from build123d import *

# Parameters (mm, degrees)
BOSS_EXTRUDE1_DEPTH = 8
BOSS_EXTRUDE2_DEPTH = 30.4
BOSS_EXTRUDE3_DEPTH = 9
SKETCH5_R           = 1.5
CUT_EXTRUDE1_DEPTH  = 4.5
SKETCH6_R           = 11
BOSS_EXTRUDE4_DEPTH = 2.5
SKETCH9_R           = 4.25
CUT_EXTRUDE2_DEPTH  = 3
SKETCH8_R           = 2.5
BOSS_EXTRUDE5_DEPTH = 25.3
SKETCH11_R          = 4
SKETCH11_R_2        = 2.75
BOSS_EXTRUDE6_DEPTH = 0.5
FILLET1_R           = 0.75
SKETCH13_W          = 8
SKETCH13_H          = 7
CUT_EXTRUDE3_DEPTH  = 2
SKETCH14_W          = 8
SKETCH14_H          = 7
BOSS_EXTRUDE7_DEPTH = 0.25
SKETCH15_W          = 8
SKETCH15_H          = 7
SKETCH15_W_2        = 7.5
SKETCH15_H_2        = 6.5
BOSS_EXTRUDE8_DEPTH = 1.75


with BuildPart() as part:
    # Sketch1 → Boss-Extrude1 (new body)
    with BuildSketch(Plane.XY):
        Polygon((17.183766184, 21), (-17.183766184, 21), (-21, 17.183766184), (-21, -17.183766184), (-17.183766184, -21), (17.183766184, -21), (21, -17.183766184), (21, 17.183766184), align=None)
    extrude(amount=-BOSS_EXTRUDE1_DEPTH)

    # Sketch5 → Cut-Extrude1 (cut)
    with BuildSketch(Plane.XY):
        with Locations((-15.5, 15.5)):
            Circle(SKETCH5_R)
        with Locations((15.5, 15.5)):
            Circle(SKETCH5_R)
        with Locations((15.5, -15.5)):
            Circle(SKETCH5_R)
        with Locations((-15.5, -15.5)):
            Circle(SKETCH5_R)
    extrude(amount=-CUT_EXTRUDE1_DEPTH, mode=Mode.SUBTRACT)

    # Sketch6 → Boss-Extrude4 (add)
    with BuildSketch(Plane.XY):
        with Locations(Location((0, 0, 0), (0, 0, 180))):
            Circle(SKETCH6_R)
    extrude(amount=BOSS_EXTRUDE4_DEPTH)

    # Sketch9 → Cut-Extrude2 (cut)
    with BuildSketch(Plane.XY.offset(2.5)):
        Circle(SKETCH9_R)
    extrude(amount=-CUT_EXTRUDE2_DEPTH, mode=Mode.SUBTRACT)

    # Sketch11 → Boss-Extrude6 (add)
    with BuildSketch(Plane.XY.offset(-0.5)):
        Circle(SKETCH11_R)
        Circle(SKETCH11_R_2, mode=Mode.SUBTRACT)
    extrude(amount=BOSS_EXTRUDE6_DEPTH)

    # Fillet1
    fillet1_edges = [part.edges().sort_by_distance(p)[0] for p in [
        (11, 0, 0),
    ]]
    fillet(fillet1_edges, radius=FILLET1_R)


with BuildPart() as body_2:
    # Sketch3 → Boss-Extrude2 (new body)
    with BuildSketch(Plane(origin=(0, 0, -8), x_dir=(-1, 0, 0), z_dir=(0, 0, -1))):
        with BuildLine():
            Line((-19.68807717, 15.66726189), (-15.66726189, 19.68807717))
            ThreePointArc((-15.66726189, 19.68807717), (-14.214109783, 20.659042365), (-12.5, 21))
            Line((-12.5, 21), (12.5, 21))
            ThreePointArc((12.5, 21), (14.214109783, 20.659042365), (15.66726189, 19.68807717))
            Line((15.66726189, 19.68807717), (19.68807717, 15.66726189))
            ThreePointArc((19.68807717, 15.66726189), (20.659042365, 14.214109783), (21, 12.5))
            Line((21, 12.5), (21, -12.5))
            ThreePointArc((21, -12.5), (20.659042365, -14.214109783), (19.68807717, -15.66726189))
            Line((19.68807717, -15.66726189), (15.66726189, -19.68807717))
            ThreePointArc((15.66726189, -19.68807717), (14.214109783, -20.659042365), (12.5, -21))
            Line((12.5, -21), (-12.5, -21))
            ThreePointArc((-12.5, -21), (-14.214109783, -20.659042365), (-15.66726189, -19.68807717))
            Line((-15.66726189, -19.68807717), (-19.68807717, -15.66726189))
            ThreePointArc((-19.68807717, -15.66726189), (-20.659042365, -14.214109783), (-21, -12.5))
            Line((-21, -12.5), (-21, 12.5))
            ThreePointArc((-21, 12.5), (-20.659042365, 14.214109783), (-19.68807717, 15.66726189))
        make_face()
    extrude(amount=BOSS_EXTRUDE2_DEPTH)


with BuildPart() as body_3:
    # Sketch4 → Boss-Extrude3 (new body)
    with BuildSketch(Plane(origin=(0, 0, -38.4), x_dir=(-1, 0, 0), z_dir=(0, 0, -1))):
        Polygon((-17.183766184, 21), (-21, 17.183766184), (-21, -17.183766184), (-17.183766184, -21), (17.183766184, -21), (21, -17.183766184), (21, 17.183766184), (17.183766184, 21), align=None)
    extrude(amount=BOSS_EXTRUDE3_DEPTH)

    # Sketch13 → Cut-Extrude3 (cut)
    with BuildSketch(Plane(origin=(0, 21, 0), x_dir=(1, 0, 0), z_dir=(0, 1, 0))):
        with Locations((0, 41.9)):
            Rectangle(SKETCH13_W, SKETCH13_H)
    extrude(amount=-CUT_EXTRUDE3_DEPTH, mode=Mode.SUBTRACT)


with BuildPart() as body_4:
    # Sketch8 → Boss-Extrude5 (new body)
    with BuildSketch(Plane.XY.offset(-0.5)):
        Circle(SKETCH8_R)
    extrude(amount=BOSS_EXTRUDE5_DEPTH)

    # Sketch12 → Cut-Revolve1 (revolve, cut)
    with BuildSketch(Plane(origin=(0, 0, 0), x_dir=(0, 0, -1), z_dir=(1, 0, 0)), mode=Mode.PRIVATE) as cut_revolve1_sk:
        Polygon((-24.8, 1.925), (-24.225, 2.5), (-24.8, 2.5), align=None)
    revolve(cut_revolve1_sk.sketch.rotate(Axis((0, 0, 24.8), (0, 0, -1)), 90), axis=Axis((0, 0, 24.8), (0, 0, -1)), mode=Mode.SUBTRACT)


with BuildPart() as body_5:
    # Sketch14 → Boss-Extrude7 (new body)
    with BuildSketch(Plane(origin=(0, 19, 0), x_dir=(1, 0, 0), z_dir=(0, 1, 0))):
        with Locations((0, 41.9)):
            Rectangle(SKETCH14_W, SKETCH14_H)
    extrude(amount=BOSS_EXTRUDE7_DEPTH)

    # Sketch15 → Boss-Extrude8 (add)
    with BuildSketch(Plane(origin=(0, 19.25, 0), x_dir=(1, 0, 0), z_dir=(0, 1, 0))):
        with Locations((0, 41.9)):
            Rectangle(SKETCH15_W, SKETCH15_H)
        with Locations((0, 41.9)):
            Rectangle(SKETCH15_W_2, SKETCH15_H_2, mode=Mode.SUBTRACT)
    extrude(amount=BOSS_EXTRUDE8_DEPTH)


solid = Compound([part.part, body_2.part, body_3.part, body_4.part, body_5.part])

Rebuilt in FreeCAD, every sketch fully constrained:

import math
import FreeCAD as App
import Part
import Sketcher
from FreeCAD import Vector
Q = App.Units.Quantity


def edges_at(feature, points):
    """Names of the edges that pass closest to the given points."""
    edges = feature.Shape.Edges
    near = lambda p: min(range(len(edges)), key=lambda i: edges[i].distToShape(Part.Vertex(*p))[0])
    return sorted({f"Edge{near(p) + 1}" for p in points})

doc = App.newDocument("Part")
body = doc.addObject("PartDesign::Body", "Body")

# Sketch on XY plane
sketch1 = body.newObject("Sketcher::SketchObject", "Sketch")
sketch1.AttachmentSupport = (doc.getObject("XY_Plane"), [""])
sketch1.MapMode = "FlatFace"
sketch1.addGeometry([
    Part.LineSegment(Vector(17, 21, 0), Vector(-17, 21, 0)),  # 0
    Part.LineSegment(Vector(-17, 21, 0), Vector(-21, 17, 0)),  # 1
    Part.LineSegment(Vector(-21, 17, 0), Vector(-21, -17, 0)),  # 2
    Part.LineSegment(Vector(-21, -17, 0), Vector(-17, -21, 0)),  # 3
    Part.LineSegment(Vector(-17, -21, 0), Vector(17, -21, 0)),  # 4
    Part.LineSegment(Vector(17, -21, 0), Vector(21, -17, 0)),  # 5
    Part.LineSegment(Vector(21, -17, 0), Vector(21, 17, 0)),  # 6
    Part.LineSegment(Vector(21, 17, 0), Vector(17, 21, 0)),  # 7
], False)
sketch1.addConstraint([
    Sketcher.Constraint("Coincident", 0, 2, 1, 1),
    Sketcher.Constraint("Coincident", 1, 2, 2, 1),
    Sketcher.Constraint("Coincident", 2, 2, 3, 1),
    Sketcher.Constraint("Coincident", 3, 2, 4, 1),
    Sketcher.Constraint("Coincident", 4, 2, 5, 1),
    Sketcher.Constraint("Coincident", 5, 2, 6, 1),
    Sketcher.Constraint("Coincident", 6, 2, 7, 1),
    Sketcher.Constraint("Coincident", 7, 2, 0, 1),
    Sketcher.Constraint("Horizontal", 0),
    Sketcher.Constraint("Vertical", 2),
    Sketcher.Constraint("Horizontal", 4),
    Sketcher.Constraint("Vertical", 6),
    Sketcher.Constraint("Symmetric", 0, 2, 4, 2, -1, 1),
    Sketcher.Constraint("Symmetric", 1, 2, 5, 2, -1, 1),
    Sketcher.Constraint("Perpendicular", 1, 3),
    Sketcher.Constraint("Perpendicular", 5, 7),
    Sketcher.Constraint("Horizontal", 2, 2, 5, 2),
    Sketcher.Constraint("Horizontal", 1, 2, 6, 2),
    Sketcher.Constraint("Vertical", 0, 2, 3, 2),
    Sketcher.Constraint("Equal", 4, 2),
    Sketcher.Constraint("DistanceY", -1, 1, 0, 2, Q("21 mm")),
    Sketcher.Constraint("Distance", 1, Q("5.39697 mm")),
])
pad1 = body.newObject("PartDesign::Pad", "Pad")
pad1.Profile = sketch1
pad1.Length = 8
pad1.Reversed = True

# Sketch on XY plane
sketch2 = body.newObject("Sketcher::SketchObject", "Sketch001")
sketch2.AttachmentSupport = (doc.getObject("XY_Plane"), [""])
sketch2.MapMode = "FlatFace"
sketch2.addGeometry([
    Part.Circle(Vector(-15.5, 15.5, 0), Vector(0, 0, 1), 1.5),
    Part.Circle(Vector(15.5, 15.5, 0), Vector(0, 0, 1), 1.5),
    Part.Circle(Vector(15.5, -15.5, 0), Vector(0, 0, 1), 1.5),
    Part.Circle(Vector(-15.5, -15.5, 0), Vector(0, 0, 1), 1.5),
], False)
sketch2.addConstraint([
    Sketcher.Constraint("Equal", 0, 1),
    Sketcher.Constraint("Equal", 1, 2),
    Sketcher.Constraint("Equal", 2, 3),
    Sketcher.Constraint("Symmetric", 0, 3, 2, 3, -1, 1),
    Sketcher.Constraint("Symmetric", 1, 3, 3, 3, -1, 1),
    Sketcher.Constraint("Symmetric", 0, 3, 1, 3, -2),
    Sketcher.Constraint("Diameter", 0, Q("3 mm")),
    Sketcher.Constraint("DistanceX", 0, 3, 1, 3, Q("31 mm")),
    Sketcher.Constraint("DistanceY", 2, 3, 1, 3, Q("31 mm")),
])
pocket1 = body.newObject("PartDesign::Pocket", "Pocket")
pocket1.Profile = sketch2
pocket1.Length = 4.5

# Sketch on XY plane
sketch3 = body.newObject("Sketcher::SketchObject", "Sketch002")
sketch3.AttachmentSupport = (doc.getObject("XY_Plane"), [""])
sketch3.MapMode = "FlatFace"
sketch3.addGeometry(Part.Circle(Vector(0, 0, 0), Vector(0, 0, 1), 11), False)
sketch3.addConstraint([
    Sketcher.Constraint("Coincident", 0, 3, -1, 1),
    Sketcher.Constraint("Diameter", 0, Q("22 mm")),
])
pad2 = body.newObject("PartDesign::Pad", "Pad001")
pad2.Profile = sketch3
pad2.Length = 2.5

# Sketch on XY plane
sketch4 = body.newObject("Sketcher::SketchObject", "Sketch003")
sketch4.AttachmentSupport = (doc.getObject("XY_Plane"), [""])
sketch4.MapMode = "FlatFace"
sketch4.AttachmentOffset = App.Placement(Vector(0, 0, 2.5), App.Rotation())
sketch4.addGeometry(Part.Circle(Vector(0, 0, 0), Vector(0, 0, 1), 4.2), False)
sketch4.addConstraint([
    Sketcher.Constraint("Coincident", 0, 3, -1, 1),
    Sketcher.Constraint("Diameter", 0, Q("8.5 mm")),
])
pocket2 = body.newObject("PartDesign::Pocket", "Pocket001")
pocket2.Profile = sketch4
pocket2.Length = 3

# Sketch on XY plane
sketch5 = body.newObject("Sketcher::SketchObject", "Sketch004")
sketch5.AttachmentSupport = (doc.getObject("XY_Plane"), [""])
sketch5.MapMode = "FlatFace"
sketch5.AttachmentOffset = App.Placement(Vector(0, 0, -0.5), App.Rotation())
sketch5.addGeometry([
    Part.Circle(Vector(0, 0, 0), Vector(0, 0, 1), 4),
    Part.Circle(Vector(0, 0, 0), Vector(0, 0, 1), 2.8),
], False)
sketch5.addConstraint([
    Sketcher.Constraint("Coincident", 0, 3, -1, 1),
    Sketcher.Constraint("Coincident", 1, 3, -1, 1),
    Sketcher.Constraint("Diameter", 0, Q("8 mm")),
    Sketcher.Constraint("Diameter", 1, Q("5.5 mm")),
])
pad3 = body.newObject("PartDesign::Pad", "Pad002")
pad3.Profile = sketch5
pad3.Length = 0.5
doc.recompute()

fillet = body.newObject("PartDesign::Fillet", "Fillet")
fillet.Base = (pad3, edges_at(pad3, [(11, 0, 0)]))
fillet.Radius = 0.75
body2 = doc.addObject("PartDesign::Body", "Body001")

# Sketch on XY plane
sketch6 = body2.newObject("Sketcher::SketchObject", "Sketch005")
sketch6.AttachmentSupport = (doc.getObject("XY_Plane001"), [""])
sketch6.MapMode = "FlatFace"
sketch6.AttachmentOffset = App.Placement(Vector(0, 0, -8), App.Rotation())
sketch6.addGeometry([
    Part.LineSegment(Vector(15.7, 19.7, 0), Vector(19.7, 15.7, 0)),  # 0
    Part.ArcOfCircle(Part.Circle(Vector(16.5, 12.5, 0), Vector(0, 0, 1), 4.5), math.radians(0), math.radians(45)),  # 1
    Part.LineSegment(Vector(21, 12.5, 0), Vector(21, -12.5, 0)),  # 2
    Part.ArcOfCircle(Part.Circle(Vector(16.5, -12.5, 0), Vector(0, 0, 1), 4.5), math.radians(-45), math.radians(0)),  # 3
    Part.LineSegment(Vector(19.7, -15.7, 0), Vector(15.7, -19.7, 0)),  # 4
    Part.ArcOfCircle(Part.Circle(Vector(12.5, -16.5, 0), Vector(0, 0, 1), 4.5), math.radians(-90), math.radians(-45)),  # 5
    Part.LineSegment(Vector(12.5, -21, 0), Vector(-12.5, -21, 0)),  # 6
    Part.ArcOfCircle(Part.Circle(Vector(-12.5, -16.5, 0), Vector(0, 0, 1), 4.5), math.radians(-135), math.radians(-90)),  # 7
    Part.LineSegment(Vector(-15.7, -19.7, 0), Vector(-19.7, -15.7, 0)),  # 8
    Part.ArcOfCircle(Part.Circle(Vector(-16.5, -12.5, 0), Vector(0, 0, 1), 4.5), math.radians(-180), math.radians(-135)),  # 9
    Part.LineSegment(Vector(-21, -12.5, 0), Vector(-21, 12.5, 0)),  # 10
    Part.ArcOfCircle(Part.Circle(Vector(-16.5, 12.5, 0), Vector(0, 0, 1), 4.5), math.radians(135), math.radians(180)),  # 11
    Part.LineSegment(Vector(-19.7, 15.7, 0), Vector(-15.7, 19.7, 0)),  # 12
    Part.ArcOfCircle(Part.Circle(Vector(-12.5, 16.5, 0), Vector(0, 0, 1), 4.5), math.radians(90), math.radians(135)),  # 13
    Part.LineSegment(Vector(-12.5, 21, 0), Vector(12.5, 21, 0)),  # 14
    Part.ArcOfCircle(Part.Circle(Vector(12.5, 16.5, 0), Vector(0, 0, 1), 4.5), math.radians(45), math.radians(90)),  # 15
], False)
sketch6.addConstraint([
    Sketcher.Constraint("Tangent", 0, 2, 1, 2),
    Sketcher.Constraint("Tangent", 1, 1, 2, 1),
    Sketcher.Constraint("Tangent", 2, 2, 3, 2),
    Sketcher.Constraint("Tangent", 3, 1, 4, 1),
    Sketcher.Constraint("Tangent", 4, 2, 5, 2),
    Sketcher.Constraint("Tangent", 5, 1, 6, 1),
    Sketcher.Constraint("Tangent", 6, 2, 7, 2),
    Sketcher.Constraint("Tangent", 7, 1, 8, 1),
    Sketcher.Constraint("Tangent", 8, 2, 9, 2),
    Sketcher.Constraint("Tangent", 9, 1, 10, 1),
    Sketcher.Constraint("Tangent", 10, 2, 11, 2),
    Sketcher.Constraint("Tangent", 11, 1, 12, 1),
    Sketcher.Constraint("Tangent", 12, 2, 13, 2),
    Sketcher.Constraint("Tangent", 13, 1, 14, 1),
    Sketcher.Constraint("Tangent", 14, 2, 15, 2),
    Sketcher.Constraint("Tangent", 15, 1, 0, 1),
    Sketcher.Constraint("Vertical", 2),
    Sketcher.Constraint("Horizontal", 6),
    Sketcher.Constraint("Vertical", 10),
    Sketcher.Constraint("Horizontal", 14),
    Sketcher.Constraint("Equal", 1, 3),
    Sketcher.Constraint("Equal", 3, 5),
    Sketcher.Constraint("Equal", 5, 7),
    Sketcher.Constraint("Equal", 7, 9),
    Sketcher.Constraint("Equal", 9, 11),
    Sketcher.Constraint("Equal", 11, 13),
    Sketcher.Constraint("Equal", 13, 15),
    Sketcher.Constraint("Symmetric", 1, 3, 9, 3, -1, 1),
    Sketcher.Constraint("Symmetric", 5, 3, 13, 3, -1, 1),
    Sketcher.Constraint("Symmetric", 4, 2, 7, 1, -2),
    Sketcher.Constraint("Symmetric", 0, 2, 11, 1, -2),
    Sketcher.Constraint("Perpendicular", 0, 4),
    Sketcher.Constraint("Equal", 14, 2),
    Sketcher.Constraint("DistanceX", 6, 2, 6, 1, Q("25 mm")),
    Sketcher.Constraint("DistanceX", -1, 1, 1, 1, Q("21 mm")),
    Sketcher.Constraint("Radius", 1, Q("4.479185 mm")),
])
pad4 = body2.newObject("PartDesign::Pad", "Pad003")
pad4.Profile = sketch6
pad4.Length = 30.4
pad4.Reversed = True
body3 = doc.addObject("PartDesign::Body", "Body002")

# Sketch on XY plane
sketch7 = body3.newObject("Sketcher::SketchObject", "Sketch006")
sketch7.AttachmentSupport = (doc.getObject("XY_Plane002"), [""])
sketch7.MapMode = "FlatFace"
sketch7.AttachmentOffset = App.Placement(Vector(0, 0, -38.4), App.Rotation())
sketch7.addGeometry([
    Part.LineSegment(Vector(17, 21, 0), Vector(21, 17, 0)),  # 0
    Part.LineSegment(Vector(21, 17, 0), Vector(21, -17, 0)),  # 1
    Part.LineSegment(Vector(21, -17, 0), Vector(17, -21, 0)),  # 2
    Part.LineSegment(Vector(17, -21, 0), Vector(-17, -21, 0)),  # 3
    Part.LineSegment(Vector(-17, -21, 0), Vector(-21, -17, 0)),  # 4
    Part.LineSegment(Vector(-21, -17, 0), Vector(-21, 17, 0)),  # 5
    Part.LineSegment(Vector(-21, 17, 0), Vector(-17, 21, 0)),  # 6
    Part.LineSegment(Vector(-17, 21, 0), Vector(17, 21, 0)),  # 7
], False)
sketch7.addConstraint([
    Sketcher.Constraint("Coincident", 0, 2, 1, 1),
    Sketcher.Constraint("Coincident", 1, 2, 2, 1),
    Sketcher.Constraint("Coincident", 2, 2, 3, 1),
    Sketcher.Constraint("Coincident", 3, 2, 4, 1),
    Sketcher.Constraint("Coincident", 4, 2, 5, 1),
    Sketcher.Constraint("Coincident", 5, 2, 6, 1),
    Sketcher.Constraint("Coincident", 6, 2, 7, 1),
    Sketcher.Constraint("Coincident", 7, 2, 0, 1),
    Sketcher.Constraint("Vertical", 1),
    Sketcher.Constraint("Horizontal", 3),
    Sketcher.Constraint("Vertical", 5),
    Sketcher.Constraint("Horizontal", 7),
    Sketcher.Constraint("Symmetric", 0, 2, 4, 2, -1, 1),
    Sketcher.Constraint("Symmetric", 2, 2, 6, 2, -1, 1),
    Sketcher.Constraint("Perpendicular", 0, 2),
    Sketcher.Constraint("Perpendicular", 2, 4),
    Sketcher.Constraint("Perpendicular", 4, 6),
    Sketcher.Constraint("Horizontal", 1, 2, 4, 2),
    Sketcher.Constraint("Vertical", 3, 2, 6, 2),
    Sketcher.Constraint("Equal", 7, 1),
    Sketcher.Constraint("DistanceX", -1, 1, 0, 2, Q("21 mm")),
    Sketcher.Constraint("Distance", 0, Q("5.39697 mm")),
])
pad5 = body3.newObject("PartDesign::Pad", "Pad004")
pad5.Profile = sketch7
pad5.Length = 9
pad5.Reversed = True

# Sketch on XZ plane
sketch8 = body3.newObject("Sketcher::SketchObject", "Sketch007")
sketch8.AttachmentSupport = (doc.getObject("XZ_Plane002"), [""])
sketch8.MapMode = "FlatFace"
sketch8.AttachmentOffset = App.Placement(Vector(0, 0, -21), App.Rotation())
sketch8.addGeometry([
    Part.LineSegment(Vector(-4, -45, 0), Vector(-4, -38, 0)),
    Part.LineSegment(Vector(-4, -38, 0), Vector(4, -38, 0)),
    Part.LineSegment(Vector(4, -38, 0), Vector(4, -45, 0)),
    Part.LineSegment(Vector(4, -45, 0), Vector(-4, -45, 0)),
], False)
sketch8.addConstraint([
    Sketcher.Constraint("Coincident", 0, 2, 1, 1),
    Sketcher.Constraint("Coincident", 1, 2, 2, 1),
    Sketcher.Constraint("Coincident", 2, 2, 3, 1),
    Sketcher.Constraint("Coincident", 3, 2, 0, 1),
    Sketcher.Constraint("Vertical", 0),
    Sketcher.Constraint("Horizontal", 1),
    Sketcher.Constraint("Vertical", 2),
    Sketcher.Constraint("Horizontal", 3),
    Sketcher.Constraint("DistanceX", 1, 1, 1, 2, Q("8 mm")),
    Sketcher.Constraint("DistanceY", 0, 1, 0, 2, Q("7 mm")),
    Sketcher.Constraint("DistanceX", 0, 2, -1, 1, Q("4 mm")),
    Sketcher.Constraint("DistanceY", 0, 2, -1, 1, Q("38.4 mm")),
])
pocket3 = body3.newObject("PartDesign::Pocket", "Pocket002")
pocket3.Profile = sketch8
pocket3.Length = 2
pocket3.Reversed = True
body4 = doc.addObject("PartDesign::Body", "Body003")

# Sketch on XY plane
sketch9 = body4.newObject("Sketcher::SketchObject", "Sketch008")
sketch9.AttachmentSupport = (doc.getObject("XY_Plane003"), [""])
sketch9.MapMode = "FlatFace"
sketch9.AttachmentOffset = App.Placement(Vector(0, 0, -0.5), App.Rotation())
sketch9.addGeometry(Part.Circle(Vector(0, 0, 0), Vector(0, 0, 1), 2.5), False)
sketch9.addConstraint([
    Sketcher.Constraint("Coincident", 0, 3, -1, 1),
    Sketcher.Constraint("Diameter", 0, Q("5 mm")),
])
pad6 = body4.newObject("PartDesign::Pad", "Pad005")
pad6.Profile = sketch9
pad6.Length = 25.3

# Sketch on YZ plane
sketch10 = body4.newObject("Sketcher::SketchObject", "Sketch009")
sketch10.AttachmentSupport = (doc.getObject("YZ_Plane003"), [""])
sketch10.MapMode = "FlatFace"
sketch10.addGeometry([
    Part.LineSegment(Vector(1.9, 24.8, 0), Vector(2.5, 24.2, 0)),
    Part.LineSegment(Vector(2.5, 24.2, 0), Vector(2.5, 24.8, 0)),
    Part.LineSegment(Vector(2.5, 24.8, 0), Vector(1.9, 24.8, 0)),
], False)
sketch10.addConstraint([
    Sketcher.Constraint("Coincident", 0, 2, 1, 1),
    Sketcher.Constraint("Coincident", 1, 2, 2, 1),
    Sketcher.Constraint("Coincident", 2, 2, 0, 1),
    Sketcher.Constraint("Vertical", 1),
    Sketcher.Constraint("Horizontal", 2),
    Sketcher.Constraint("Equal", 2, 1),
    Sketcher.Constraint("DistanceX", -1, 1, 0, 2, Q("2.5 mm")),
    Sketcher.Constraint("DistanceY", -1, 1, 1, 2, Q("24.8 mm")),
    Sketcher.Constraint("DistanceX", 2, 2, 2, 1, Q("0.575 mm")),
])
groove = body4.newObject("PartDesign::Groove", "Groove")
groove.Profile = sketch10
groove.ReferenceAxis = (sketch10, ["V_Axis"])
groove.Angle = 360
body5 = doc.addObject("PartDesign::Body", "Body004")

# Sketch on XZ plane
sketch11 = body5.newObject("Sketcher::SketchObject", "Sketch010")
sketch11.AttachmentSupport = (doc.getObject("XZ_Plane004"), [""])
sketch11.MapMode = "FlatFace"
sketch11.AttachmentOffset = App.Placement(Vector(0, 0, -19), App.Rotation())
sketch11.addGeometry([
    Part.LineSegment(Vector(-4, -45, 0), Vector(-4, -38, 0)),
    Part.LineSegment(Vector(-4, -38, 0), Vector(4, -38, 0)),
    Part.LineSegment(Vector(4, -38, 0), Vector(4, -45, 0)),
    Part.LineSegment(Vector(4, -45, 0), Vector(-4, -45, 0)),
], False)
sketch11.addConstraint([
    Sketcher.Constraint("Coincident", 0, 2, 1, 1),
    Sketcher.Constraint("Coincident", 1, 2, 2, 1),
    Sketcher.Constraint("Coincident", 2, 2, 3, 1),
    Sketcher.Constraint("Coincident", 3, 2, 0, 1),
    Sketcher.Constraint("Vertical", 0),
    Sketcher.Constraint("Horizontal", 1),
    Sketcher.Constraint("Vertical", 2),
    Sketcher.Constraint("Horizontal", 3),
    Sketcher.Constraint("DistanceX", 1, 1, 1, 2, Q("8 mm")),
    Sketcher.Constraint("DistanceY", 0, 1, 0, 2, Q("7 mm")),
    Sketcher.Constraint("DistanceX", 0, 2, -1, 1, Q("4 mm")),
    Sketcher.Constraint("DistanceY", 0, 2, -1, 1, Q("38.4 mm")),
])
pad7 = body5.newObject("PartDesign::Pad", "Pad006")
pad7.Profile = sketch11
pad7.Length = 0.25
pad7.Reversed = True

# Sketch on XZ plane
sketch12 = body5.newObject("Sketcher::SketchObject", "Sketch011")
sketch12.AttachmentSupport = (doc.getObject("XZ_Plane004"), [""])
sketch12.MapMode = "FlatFace"
sketch12.AttachmentOffset = App.Placement(Vector(0, 0, -19.25), App.Rotation())
sketch12.addGeometry([
    Part.LineSegment(Vector(-4, -45, 0), Vector(-4, -38, 0)),  # 0
    Part.LineSegment(Vector(-4, -38, 0), Vector(4, -38, 0)),  # 1
    Part.LineSegment(Vector(4, -38, 0), Vector(4, -45, 0)),  # 2
    Part.LineSegment(Vector(4, -45, 0), Vector(-4, -45, 0)),  # 3
    Part.LineSegment(Vector(4, -39, 0), Vector(-4, -39, 0)),  # 4
    Part.LineSegment(Vector(-4, -39, 0), Vector(-4, -45, 0)),  # 5
    Part.LineSegment(Vector(-4, -45, 0), Vector(4, -45, 0)),  # 6
    Part.LineSegment(Vector(4, -45, 0), Vector(4, -39, 0)),  # 7
], False)
sketch12.addConstraint([
    Sketcher.Constraint("Coincident", 0, 2, 1, 1),
    Sketcher.Constraint("Coincident", 1, 2, 2, 1),
    Sketcher.Constraint("Coincident", 2, 2, 3, 1),
    Sketcher.Constraint("Coincident", 3, 2, 0, 1),
    Sketcher.Constraint("Coincident", 4, 2, 5, 1),
    Sketcher.Constraint("Coincident", 5, 2, 6, 1),
    Sketcher.Constraint("Coincident", 6, 2, 7, 1),
    Sketcher.Constraint("Coincident", 7, 2, 4, 1),
    Sketcher.Constraint("Vertical", 0),
    Sketcher.Constraint("Horizontal", 1),
    Sketcher.Constraint("Vertical", 2),
    Sketcher.Constraint("Horizontal", 3),
    Sketcher.Constraint("Horizontal", 4),
    Sketcher.Constraint("Vertical", 5),
    Sketcher.Constraint("Horizontal", 6),
    Sketcher.Constraint("Vertical", 7),
    Sketcher.Constraint("DistanceX", 1, 1, 1, 2, Q("8 mm")),
    Sketcher.Constraint("DistanceY", 0, 1, 0, 2, Q("7 mm")),
    Sketcher.Constraint("DistanceX", 4, 2, 4, 1, Q("7.5 mm")),
    Sketcher.Constraint("DistanceY", 5, 2, 5, 1, Q("6.5 mm")),
    Sketcher.Constraint("DistanceX", 0, 2, -1, 1, Q("4 mm")),
    Sketcher.Constraint("DistanceY", 0, 2, -1, 1, Q("38.4 mm")),
    Sketcher.Constraint("DistanceX", 4, 2, -1, 1, Q("3.75 mm")),
    Sketcher.Constraint("DistanceY", 4, 2, -1, 1, Q("38.65 mm")),
])
pad8 = body5.newObject("PartDesign::Pad", "Pad007")
pad8.Profile = sketch12
pad8.Length = 1.75
pad8.Reversed = True

doc.recompute()
